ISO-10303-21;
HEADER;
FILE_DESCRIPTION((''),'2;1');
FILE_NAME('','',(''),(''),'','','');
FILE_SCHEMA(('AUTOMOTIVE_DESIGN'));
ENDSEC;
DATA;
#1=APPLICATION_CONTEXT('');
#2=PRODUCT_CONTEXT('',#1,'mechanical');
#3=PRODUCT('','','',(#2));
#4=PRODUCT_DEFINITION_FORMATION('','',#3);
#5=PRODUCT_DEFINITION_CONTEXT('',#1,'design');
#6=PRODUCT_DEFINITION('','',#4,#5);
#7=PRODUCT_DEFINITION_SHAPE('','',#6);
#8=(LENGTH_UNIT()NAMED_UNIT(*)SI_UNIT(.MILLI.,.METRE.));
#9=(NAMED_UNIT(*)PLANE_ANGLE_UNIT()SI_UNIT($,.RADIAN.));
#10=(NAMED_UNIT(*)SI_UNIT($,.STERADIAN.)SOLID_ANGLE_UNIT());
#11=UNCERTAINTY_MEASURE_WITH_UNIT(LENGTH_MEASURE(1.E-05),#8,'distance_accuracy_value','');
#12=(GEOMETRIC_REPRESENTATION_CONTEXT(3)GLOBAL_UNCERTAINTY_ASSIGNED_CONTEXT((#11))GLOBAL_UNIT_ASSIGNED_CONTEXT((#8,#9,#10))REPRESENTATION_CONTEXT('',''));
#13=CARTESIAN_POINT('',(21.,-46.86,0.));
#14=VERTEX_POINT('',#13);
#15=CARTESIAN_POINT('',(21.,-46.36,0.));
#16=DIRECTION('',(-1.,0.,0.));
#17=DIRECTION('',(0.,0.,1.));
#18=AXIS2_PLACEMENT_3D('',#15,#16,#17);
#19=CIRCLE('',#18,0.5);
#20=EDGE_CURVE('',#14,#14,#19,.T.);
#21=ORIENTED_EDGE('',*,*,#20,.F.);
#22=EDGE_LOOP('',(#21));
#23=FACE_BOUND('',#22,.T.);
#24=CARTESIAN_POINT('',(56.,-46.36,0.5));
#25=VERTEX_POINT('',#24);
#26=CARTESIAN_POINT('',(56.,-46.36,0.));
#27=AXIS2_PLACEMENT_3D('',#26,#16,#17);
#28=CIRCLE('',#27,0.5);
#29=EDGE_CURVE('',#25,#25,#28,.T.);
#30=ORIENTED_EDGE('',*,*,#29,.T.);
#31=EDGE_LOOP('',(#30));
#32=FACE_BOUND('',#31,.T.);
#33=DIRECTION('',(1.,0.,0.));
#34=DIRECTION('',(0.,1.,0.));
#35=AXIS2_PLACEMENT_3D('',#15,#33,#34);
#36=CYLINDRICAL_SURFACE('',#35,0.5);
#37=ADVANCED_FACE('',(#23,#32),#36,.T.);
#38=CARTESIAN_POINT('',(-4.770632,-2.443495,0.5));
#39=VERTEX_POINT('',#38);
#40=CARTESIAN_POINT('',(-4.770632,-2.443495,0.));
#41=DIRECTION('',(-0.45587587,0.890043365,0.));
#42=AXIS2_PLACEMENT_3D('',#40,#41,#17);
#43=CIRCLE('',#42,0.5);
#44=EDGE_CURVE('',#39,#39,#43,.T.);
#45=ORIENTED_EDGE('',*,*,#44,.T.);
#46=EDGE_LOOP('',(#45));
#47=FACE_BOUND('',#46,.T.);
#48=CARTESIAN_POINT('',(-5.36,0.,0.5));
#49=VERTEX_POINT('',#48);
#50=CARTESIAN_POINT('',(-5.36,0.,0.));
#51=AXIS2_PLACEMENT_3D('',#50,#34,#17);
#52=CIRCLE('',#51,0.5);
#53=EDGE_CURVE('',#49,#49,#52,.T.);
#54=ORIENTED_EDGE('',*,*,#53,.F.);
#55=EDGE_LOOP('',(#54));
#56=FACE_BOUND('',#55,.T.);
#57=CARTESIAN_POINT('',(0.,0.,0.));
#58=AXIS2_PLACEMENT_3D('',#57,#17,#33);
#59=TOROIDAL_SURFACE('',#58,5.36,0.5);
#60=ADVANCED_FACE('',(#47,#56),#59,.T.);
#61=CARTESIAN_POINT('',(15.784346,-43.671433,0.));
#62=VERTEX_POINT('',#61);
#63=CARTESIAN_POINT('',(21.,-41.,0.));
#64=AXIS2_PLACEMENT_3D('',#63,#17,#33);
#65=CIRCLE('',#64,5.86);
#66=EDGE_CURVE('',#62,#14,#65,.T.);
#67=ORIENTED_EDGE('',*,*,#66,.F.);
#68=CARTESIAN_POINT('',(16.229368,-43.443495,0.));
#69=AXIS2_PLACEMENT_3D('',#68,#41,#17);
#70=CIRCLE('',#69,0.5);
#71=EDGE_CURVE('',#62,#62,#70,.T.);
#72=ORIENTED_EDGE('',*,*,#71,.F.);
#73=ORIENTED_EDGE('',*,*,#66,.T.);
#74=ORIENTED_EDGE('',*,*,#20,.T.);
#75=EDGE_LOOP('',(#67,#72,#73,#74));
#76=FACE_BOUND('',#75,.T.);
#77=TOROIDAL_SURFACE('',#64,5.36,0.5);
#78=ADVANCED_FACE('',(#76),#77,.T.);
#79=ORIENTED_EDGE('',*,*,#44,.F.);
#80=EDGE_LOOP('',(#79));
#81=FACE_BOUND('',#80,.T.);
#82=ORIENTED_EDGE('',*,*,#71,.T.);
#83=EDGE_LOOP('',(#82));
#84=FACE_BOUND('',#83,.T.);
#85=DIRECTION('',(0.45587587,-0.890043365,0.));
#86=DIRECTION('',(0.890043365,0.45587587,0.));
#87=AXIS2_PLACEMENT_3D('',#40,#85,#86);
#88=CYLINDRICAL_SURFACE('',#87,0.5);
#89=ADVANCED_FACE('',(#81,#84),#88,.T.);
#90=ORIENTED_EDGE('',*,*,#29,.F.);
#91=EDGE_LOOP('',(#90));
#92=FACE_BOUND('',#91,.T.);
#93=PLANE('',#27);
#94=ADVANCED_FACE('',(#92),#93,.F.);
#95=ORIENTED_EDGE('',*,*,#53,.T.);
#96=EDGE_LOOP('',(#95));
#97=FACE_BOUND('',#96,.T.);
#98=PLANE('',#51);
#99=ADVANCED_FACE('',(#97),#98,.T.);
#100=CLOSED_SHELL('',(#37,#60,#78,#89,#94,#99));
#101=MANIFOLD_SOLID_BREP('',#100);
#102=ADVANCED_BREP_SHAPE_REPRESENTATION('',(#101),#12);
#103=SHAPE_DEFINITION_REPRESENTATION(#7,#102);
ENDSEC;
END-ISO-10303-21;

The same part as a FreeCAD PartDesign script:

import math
import FreeCAD as App
import Part
import Sketcher

doc = App.newDocument("Part")
body = doc.addObject("PartDesign::Body", "Body")

# Sketch on XZ plane
sketch1 = body.newObject("Sketcher::SketchObject", "Sketch")
sketch1.AttachmentSupport = (doc.getObject("XZ_Plane"), [""])
sketch1.MapMode = "FlatFace"
sketch1.addGeometry(Part.Circle(App.Vector(-5.4, 0, 0), App.Vector(0, 0, 1), 0.5), False)
sketch1.addConstraint(Sketcher.Constraint("PointOnObject", 0, 3, -1))
sketch1.addConstraint(Sketcher.Constraint("Diameter", 0, 1.0))
sketch1.addConstraint(Sketcher.Constraint("DistanceX", 0, 3, -1, 1, 5.36))

# Sketch on XY plane
sketch2 = body.newObject("Sketcher::SketchObject", "Sketch001")
sketch2.AttachmentSupport = (doc.getObject("XY_Plane"), [""])
sketch2.MapMode = "FlatFace"
sketch2.addGeometry(Part.LineSegment(App.Vector(56, -46.4, 0), App.Vector(21, -46.4, 0)), False)
sketch2.addGeometry(Part.ArcOfCircle(Part.Circle(App.Vector(21, -41, 0), App.Vector(0, 0, 1), 5.4), math.radians(-153), math.radians(-90)), False)
sketch2.addGeometry(Part.LineSegment(App.Vector(16.2, -43.4, 0), App.Vector(-4.8, -2.4, 0)), False)
sketch2.addGeometry(Part.ArcOfCircle(Part.Circle(App.Vector(0, 0, 0), App.Vector(0, 0, 1), 5.4), math.radians(-180), math.radians(-153)), False)
sketch2.addConstraint(Sketcher.Constraint("Tangent", 0, 2, 1, 2))
sketch2.addConstraint(Sketcher.Constraint("Tangent", 1, 1, 2, 1))
sketch2.addConstraint(Sketcher.Constraint("Tangent", 2, 2, 3, 2))
sketch2.addConstraint(Sketcher.Constraint("Horizontal", 0))
sketch2.addConstraint(Sketcher.Constraint("Coincident", 3, 3, -1, 1))
sketch2.addConstraint(Sketcher.Constraint("Equal", 1, 3))
sketch2.addConstraint(Sketcher.Constraint("PointOnObject", 3, 1, -1))
sketch2.addConstraint(Sketcher.Constraint("DistanceX", 0, 2, 0, 1, 35.0))
sketch2.addConstraint(Sketcher.Constraint("Radius", 1, 5.36))
sketch2.addConstraint(Sketcher.Constraint("DistanceX", -1, 1, 1, 3, 21.0))
sketch2.addConstraint(Sketcher.Constraint("DistanceY", 1, 3, -1, 1, 41.0))
doc.recompute()

additivepipe = body.newObject("PartDesign::AdditivePipe", "AdditivePipe")
additivepipe.Profile = sketch1
additivepipe.Spine = (sketch2, ["Edge1", "Edge2", "Edge3", "Edge4"])

doc.recompute()
